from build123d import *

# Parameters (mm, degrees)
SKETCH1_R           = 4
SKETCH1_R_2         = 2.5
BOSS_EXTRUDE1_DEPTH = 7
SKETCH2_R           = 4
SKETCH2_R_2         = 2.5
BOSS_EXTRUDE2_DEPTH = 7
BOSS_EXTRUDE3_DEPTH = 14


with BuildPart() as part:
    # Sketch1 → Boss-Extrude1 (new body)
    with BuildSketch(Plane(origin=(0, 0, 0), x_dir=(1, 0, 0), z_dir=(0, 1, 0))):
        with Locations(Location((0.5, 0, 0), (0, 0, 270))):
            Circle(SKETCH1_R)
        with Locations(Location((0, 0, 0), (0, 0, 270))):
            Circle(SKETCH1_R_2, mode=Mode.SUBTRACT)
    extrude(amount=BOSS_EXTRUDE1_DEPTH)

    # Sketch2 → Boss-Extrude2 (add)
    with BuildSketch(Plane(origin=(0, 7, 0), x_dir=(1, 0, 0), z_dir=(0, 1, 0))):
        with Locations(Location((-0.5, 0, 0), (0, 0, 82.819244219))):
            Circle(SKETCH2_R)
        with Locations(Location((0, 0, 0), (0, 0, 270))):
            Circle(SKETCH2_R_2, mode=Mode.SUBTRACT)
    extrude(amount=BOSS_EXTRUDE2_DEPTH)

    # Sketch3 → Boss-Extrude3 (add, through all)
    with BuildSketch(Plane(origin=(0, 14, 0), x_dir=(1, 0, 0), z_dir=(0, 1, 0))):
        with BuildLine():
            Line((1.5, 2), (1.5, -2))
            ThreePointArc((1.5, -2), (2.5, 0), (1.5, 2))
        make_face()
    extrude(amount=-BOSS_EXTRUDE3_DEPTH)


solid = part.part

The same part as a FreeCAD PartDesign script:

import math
import FreeCAD as App
import Part
import Sketcher

V = App.Vector
Q = App.Units.Quantity

doc = App.newDocument("Part")
body = doc.addObject("PartDesign::Body", "Body")

sketch1 = doc.addObject("Sketcher::SketchObject", "Sketch")
body.addObject(sketch1)
sketch1.AttachmentSupport = (doc.XZ_Plane, [""])
sketch1.MapMode = "FlatFace"
sketch1.addGeometry([
    Part.Circle(V(0.5, 0, 0), V(0, 0, 1), 4),
    Part.Circle(V(0, 0, 0), V(0, 0, 1), 2.5),
], False)
sketch1.addConstraint([
    Sketcher.Constraint("Coincident", 1, 3, -1, 1),
    Sketcher.Constraint("PointOnObject", 0, 3, -1),
    Sketcher.Constraint("Diameter", 0, Q("8 mm")),
    Sketcher.Constraint("Diameter", 1, Q("5 mm")),
    Sketcher.Constraint("DistanceX", -1, 1, 0, 3, Q("0.5 mm")),
])
pad1 = doc.addObject("PartDesign::Pad", "Pad")
body.addObject(pad1)
pad1.Profile = sketch1
pad1.Length = 7
pad1.Reversed = True

sketch2 = doc.addObject("Sketcher::SketchObject", "Sketch001")
body.addObject(sketch2)
sketch2.AttachmentSupport = (doc.XZ_Plane, [""])
sketch2.MapMode = "FlatFace"
sketch2.AttachmentOffset = App.Placement(V(0, 0, -7), App.Rotation())
sketch2.addGeometry([
    Part.Circle(V(-0.5, 0, 0), V(0, 0, 1), 4),
    Part.Circle(V(0, 0, 0), V(0, 0, 1), 2.5),
], False)
sketch2.addConstraint([
    Sketcher.Constraint("Coincident", 1, 3, -1, 1),
    Sketcher.Constraint("PointOnObject", 0, 3, -1),
    Sketcher.Constraint("Diameter", 0, Q("8 mm")),
    Sketcher.Constraint("Diameter", 1, Q("5 mm")),
    Sketcher.Constraint("DistanceX", 0, 3, -1, 1, Q("0.5 mm")),
])
pad2 = doc.addObject("PartDesign::Pad", "Pad001")
body.addObject(pad2)
pad2.Profile = sketch2
pad2.Length = 7
pad2.Reversed = True

sketch3 = doc.addObject("Sketcher::SketchObject", "Sketch002")
body.addObject(sketch3)
sketch3.AttachmentSupport = (doc.XZ_Plane, [""])
sketch3.MapMode = "FlatFace"
sketch3.AttachmentOffset = App.Placement(V(0, 0, -14), App.Rotation())
sketch3.addGeometry([
    Part.LineSegment(V(1.5, -2, 0), V(1.5, 2, 0)),
    Part.ArcOfCircle(Part.Circle(V(0, 0, 0), V(0, 0, 1), 2.5), math.radians(-53), math.radians(53)),
], False)
sketch3.addConstraint([
    Sketcher.Constraint("Coincident", 0, 1, 1, 1),
    Sketcher.Constraint("Coincident", 1, 2, 0, 2),
    Sketcher.Constraint("Vertical", 0),
    Sketcher.Constraint("Coincident", 1, 3, -1, 1),
    Sketcher.Constraint("Radius", 1, Q("2.5 mm")),
    Sketcher.Constraint("DistanceY", 0, 1, 0, 2, Q("4 mm")),
])
pad3 = doc.addObject("PartDesign::Pad", "Pad002")
body.addObject(pad3)
pad3.Profile = sketch3
pad3.Length = 14

doc.recompute()
